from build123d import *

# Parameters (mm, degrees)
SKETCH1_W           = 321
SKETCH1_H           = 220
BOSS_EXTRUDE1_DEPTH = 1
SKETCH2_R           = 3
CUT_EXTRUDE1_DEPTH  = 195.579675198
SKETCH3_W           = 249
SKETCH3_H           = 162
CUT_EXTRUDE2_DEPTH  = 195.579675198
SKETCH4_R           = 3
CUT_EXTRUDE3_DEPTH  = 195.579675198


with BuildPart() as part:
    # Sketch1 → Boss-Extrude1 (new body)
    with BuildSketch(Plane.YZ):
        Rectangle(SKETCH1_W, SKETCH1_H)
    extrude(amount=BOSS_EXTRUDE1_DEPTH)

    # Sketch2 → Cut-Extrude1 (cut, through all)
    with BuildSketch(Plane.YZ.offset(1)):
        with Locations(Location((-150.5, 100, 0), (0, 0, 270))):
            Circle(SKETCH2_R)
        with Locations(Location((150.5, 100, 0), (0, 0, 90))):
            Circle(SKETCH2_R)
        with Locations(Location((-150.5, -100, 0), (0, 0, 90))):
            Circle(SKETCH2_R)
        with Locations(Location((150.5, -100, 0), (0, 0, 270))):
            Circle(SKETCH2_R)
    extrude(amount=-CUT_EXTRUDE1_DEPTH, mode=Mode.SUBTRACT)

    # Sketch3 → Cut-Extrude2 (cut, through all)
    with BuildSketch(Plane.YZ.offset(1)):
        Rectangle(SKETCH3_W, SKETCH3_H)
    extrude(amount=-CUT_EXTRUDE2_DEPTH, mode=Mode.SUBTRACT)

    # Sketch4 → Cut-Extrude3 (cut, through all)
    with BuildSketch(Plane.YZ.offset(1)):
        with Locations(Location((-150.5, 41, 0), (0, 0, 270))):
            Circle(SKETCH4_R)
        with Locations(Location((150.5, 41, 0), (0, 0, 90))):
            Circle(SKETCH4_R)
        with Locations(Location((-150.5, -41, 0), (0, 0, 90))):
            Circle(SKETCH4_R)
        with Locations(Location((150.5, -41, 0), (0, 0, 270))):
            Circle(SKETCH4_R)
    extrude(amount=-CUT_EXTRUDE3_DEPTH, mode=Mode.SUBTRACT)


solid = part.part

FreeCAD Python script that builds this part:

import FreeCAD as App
import Part
import Sketcher

V = App.Vector

doc = App.newDocument("Part")
body = doc.addObject("PartDesign::Body", "Body")

sketch1 = body.newObject("Sketcher::SketchObject", "Sketch")
sketch1.AttachmentSupport = (doc.getObject("YZ_Plane"), [""])
sketch1.MapMode = "FlatFace"
sketch1.addGeometry([
    Part.LineSegment(V(-160, 110, 0), V(-160, -110, 0)),
    Part.LineSegment(V(-160, -110, 0), V(160, -110, 0)),
    Part.LineSegment(V(160, -110, 0), V(160, 110, 0)),
    Part.LineSegment(V(160, 110, 0), V(-160, 110, 0)),
], False)
sketch1.addConstraint([
    Sketcher.Constraint("Coincident", 0, 2, 1, 1),
    Sketcher.Constraint("Coincident", 1, 2, 2, 1),
    Sketcher.Constraint("Coincident", 2, 2, 3, 1),
    Sketcher.Constraint("Coincident", 3, 2, 0, 1),
    Sketcher.Constraint("Vertical", 0),
    Sketcher.Constraint("Horizontal", 1),
    Sketcher.Constraint("Vertical", 2),
    Sketcher.Constraint("Horizontal", 3),
    Sketcher.Constraint("Symmetric", 0, 2, 2, 2, -1, 1),
    Sketcher.Constraint("DistanceX", 1, 1, 1, 2, 321.0),
    Sketcher.Constraint("DistanceY", 0, 2, 0, 1, 220.0),
])
pad1 = body.newObject("PartDesign::Pad", "Pad")
pad1.Profile = sketch1
pad1.Length = 1

sketch2 = body.newObject("Sketcher::SketchObject", "Sketch001")
sketch2.AttachmentSupport = (doc.getObject("YZ_Plane"), [""])
sketch2.MapMode = "FlatFace"
sketch2.AttachmentOffset = App.Placement(V(0, 0, 1), App.Rotation())
sketch2.addGeometry([
    Part.Circle(V(-150.5, 100, 0), V(0, 0, 1), 3),
    Part.Circle(V(150.5, 100, 0), V(0, 0, 1), 3),
    Part.Circle(V(-150.5, -100, 0), V(0, 0, 1), 3),
    Part.Circle(V(150.5, -100, 0), V(0, 0, 1), 3),
], False)
sketch2.addConstraint([
    Sketcher.Constraint("Equal", 0, 1),
    Sketcher.Constraint("Equal", 1, 2),
    Sketcher.Constraint("Equal", 2, 3),
    Sketcher.Constraint("Symmetric", 1, 3, 2, 3, -1, 1),
    Sketcher.Constraint("Symmetric", 0, 3, 3, 3, -1, 1),
    Sketcher.Constraint("Symmetric", 0, 3, 1, 3, -2),
    Sketcher.Constraint("Diameter", 0, 6.0),
    Sketcher.Constraint("DistanceY", -1, 1, 0, 3, 100.0),
    Sketcher.Constraint("DistanceX", 0, 3, 1, 3, 301.0),
])
pocket1 = body.newObject("PartDesign::Pocket", "Pocket")
pocket1.Profile = sketch2
pocket1.Type = "ThroughAll"

sketch3 = body.newObject("Sketcher::SketchObject", "Sketch002")
sketch3.AttachmentSupport = (doc.getObject("YZ_Plane"), [""])
sketch3.MapMode = "FlatFace"
sketch3.AttachmentOffset = App.Placement(V(0, 0, 1), App.Rotation())
sketch3.addGeometry([
    Part.LineSegment(V(-124, 81, 0), V(-124, -81, 0)),
    Part.LineSegment(V(-124, -81, 0), V(124, -81, 0)),
    Part.LineSegment(V(124, -81, 0), V(124, 81, 0)),
    Part.LineSegment(V(124, 81, 0), V(-124, 81, 0)),
], False)
sketch3.addConstraint([
    Sketcher.Constraint("Coincident", 0, 2, 1, 1),
    Sketcher.Constraint("Coincident", 1, 2, 2, 1),
    Sketcher.Constraint("Coincident", 2, 2, 3, 1),
    Sketcher.Constraint("Coincident", 3, 2, 0, 1),
    Sketcher.Constraint("Vertical", 0),
    Sketcher.Constraint("Horizontal", 1),
    Sketcher.Constraint("Vertical", 2),
    Sketcher.Constraint("Horizontal", 3),
    Sketcher.Constraint("Symmetric", 0, 2, 2, 2, -1, 1),
    Sketcher.Constraint("DistanceX", 1, 1, 1, 2, 249.0),
    Sketcher.Constraint("DistanceY", 0, 2, 0, 1, 162.0),
])
pocket2 = body.newObject("PartDesign::Pocket", "Pocket001")
pocket2.Profile = sketch3
pocket2.Type = "ThroughAll"

sketch4 = body.newObject("Sketcher::SketchObject", "Sketch003")
sketch4.AttachmentSupport = (doc.getObject("YZ_Plane"), [""])
sketch4.MapMode = "FlatFace"
sketch4.AttachmentOffset = App.Placement(V(0, 0, 1), App.Rotation())
sketch4.addGeometry([
    Part.Circle(V(-150.5, 41, 0), V(0, 0, 1), 3),
    Part.Circle(V(150.5, 41, 0), V(0, 0, 1), 3),
    Part.Circle(V(-150.5, -41, 0), V(0, 0, 1), 3),
    Part.Circle(V(150.5, -41, 0), V(0, 0, 1), 3),
], False)
sketch4.addConstraint([
    Sketcher.Constraint("Equal", 0, 1),
    Sketcher.Constraint("Equal", 1, 2),
    Sketcher.Constraint("Equal", 2, 3),
    Sketcher.Constraint("Symmetric", 1, 3, 2, 3, -1, 1),
    Sketcher.Constraint("Symmetric", 0, 3, 3, 3, -1, 1),
    Sketcher.Constraint("Symmetric", 0, 3, 1, 3, -2),
    Sketcher.Constraint("Diameter", 0, 6.0),
    Sketcher.Constraint("DistanceY", -1, 1, 0, 3, 41.0),
    Sketcher.Constraint("DistanceX", 0, 3, 1, 3, 301.0),
])
pocket3 = body.newObject("PartDesign::Pocket", "Pocket002")
pocket3.Profile = sketch4
pocket3.Type = "ThroughAll"

doc.recompute()
